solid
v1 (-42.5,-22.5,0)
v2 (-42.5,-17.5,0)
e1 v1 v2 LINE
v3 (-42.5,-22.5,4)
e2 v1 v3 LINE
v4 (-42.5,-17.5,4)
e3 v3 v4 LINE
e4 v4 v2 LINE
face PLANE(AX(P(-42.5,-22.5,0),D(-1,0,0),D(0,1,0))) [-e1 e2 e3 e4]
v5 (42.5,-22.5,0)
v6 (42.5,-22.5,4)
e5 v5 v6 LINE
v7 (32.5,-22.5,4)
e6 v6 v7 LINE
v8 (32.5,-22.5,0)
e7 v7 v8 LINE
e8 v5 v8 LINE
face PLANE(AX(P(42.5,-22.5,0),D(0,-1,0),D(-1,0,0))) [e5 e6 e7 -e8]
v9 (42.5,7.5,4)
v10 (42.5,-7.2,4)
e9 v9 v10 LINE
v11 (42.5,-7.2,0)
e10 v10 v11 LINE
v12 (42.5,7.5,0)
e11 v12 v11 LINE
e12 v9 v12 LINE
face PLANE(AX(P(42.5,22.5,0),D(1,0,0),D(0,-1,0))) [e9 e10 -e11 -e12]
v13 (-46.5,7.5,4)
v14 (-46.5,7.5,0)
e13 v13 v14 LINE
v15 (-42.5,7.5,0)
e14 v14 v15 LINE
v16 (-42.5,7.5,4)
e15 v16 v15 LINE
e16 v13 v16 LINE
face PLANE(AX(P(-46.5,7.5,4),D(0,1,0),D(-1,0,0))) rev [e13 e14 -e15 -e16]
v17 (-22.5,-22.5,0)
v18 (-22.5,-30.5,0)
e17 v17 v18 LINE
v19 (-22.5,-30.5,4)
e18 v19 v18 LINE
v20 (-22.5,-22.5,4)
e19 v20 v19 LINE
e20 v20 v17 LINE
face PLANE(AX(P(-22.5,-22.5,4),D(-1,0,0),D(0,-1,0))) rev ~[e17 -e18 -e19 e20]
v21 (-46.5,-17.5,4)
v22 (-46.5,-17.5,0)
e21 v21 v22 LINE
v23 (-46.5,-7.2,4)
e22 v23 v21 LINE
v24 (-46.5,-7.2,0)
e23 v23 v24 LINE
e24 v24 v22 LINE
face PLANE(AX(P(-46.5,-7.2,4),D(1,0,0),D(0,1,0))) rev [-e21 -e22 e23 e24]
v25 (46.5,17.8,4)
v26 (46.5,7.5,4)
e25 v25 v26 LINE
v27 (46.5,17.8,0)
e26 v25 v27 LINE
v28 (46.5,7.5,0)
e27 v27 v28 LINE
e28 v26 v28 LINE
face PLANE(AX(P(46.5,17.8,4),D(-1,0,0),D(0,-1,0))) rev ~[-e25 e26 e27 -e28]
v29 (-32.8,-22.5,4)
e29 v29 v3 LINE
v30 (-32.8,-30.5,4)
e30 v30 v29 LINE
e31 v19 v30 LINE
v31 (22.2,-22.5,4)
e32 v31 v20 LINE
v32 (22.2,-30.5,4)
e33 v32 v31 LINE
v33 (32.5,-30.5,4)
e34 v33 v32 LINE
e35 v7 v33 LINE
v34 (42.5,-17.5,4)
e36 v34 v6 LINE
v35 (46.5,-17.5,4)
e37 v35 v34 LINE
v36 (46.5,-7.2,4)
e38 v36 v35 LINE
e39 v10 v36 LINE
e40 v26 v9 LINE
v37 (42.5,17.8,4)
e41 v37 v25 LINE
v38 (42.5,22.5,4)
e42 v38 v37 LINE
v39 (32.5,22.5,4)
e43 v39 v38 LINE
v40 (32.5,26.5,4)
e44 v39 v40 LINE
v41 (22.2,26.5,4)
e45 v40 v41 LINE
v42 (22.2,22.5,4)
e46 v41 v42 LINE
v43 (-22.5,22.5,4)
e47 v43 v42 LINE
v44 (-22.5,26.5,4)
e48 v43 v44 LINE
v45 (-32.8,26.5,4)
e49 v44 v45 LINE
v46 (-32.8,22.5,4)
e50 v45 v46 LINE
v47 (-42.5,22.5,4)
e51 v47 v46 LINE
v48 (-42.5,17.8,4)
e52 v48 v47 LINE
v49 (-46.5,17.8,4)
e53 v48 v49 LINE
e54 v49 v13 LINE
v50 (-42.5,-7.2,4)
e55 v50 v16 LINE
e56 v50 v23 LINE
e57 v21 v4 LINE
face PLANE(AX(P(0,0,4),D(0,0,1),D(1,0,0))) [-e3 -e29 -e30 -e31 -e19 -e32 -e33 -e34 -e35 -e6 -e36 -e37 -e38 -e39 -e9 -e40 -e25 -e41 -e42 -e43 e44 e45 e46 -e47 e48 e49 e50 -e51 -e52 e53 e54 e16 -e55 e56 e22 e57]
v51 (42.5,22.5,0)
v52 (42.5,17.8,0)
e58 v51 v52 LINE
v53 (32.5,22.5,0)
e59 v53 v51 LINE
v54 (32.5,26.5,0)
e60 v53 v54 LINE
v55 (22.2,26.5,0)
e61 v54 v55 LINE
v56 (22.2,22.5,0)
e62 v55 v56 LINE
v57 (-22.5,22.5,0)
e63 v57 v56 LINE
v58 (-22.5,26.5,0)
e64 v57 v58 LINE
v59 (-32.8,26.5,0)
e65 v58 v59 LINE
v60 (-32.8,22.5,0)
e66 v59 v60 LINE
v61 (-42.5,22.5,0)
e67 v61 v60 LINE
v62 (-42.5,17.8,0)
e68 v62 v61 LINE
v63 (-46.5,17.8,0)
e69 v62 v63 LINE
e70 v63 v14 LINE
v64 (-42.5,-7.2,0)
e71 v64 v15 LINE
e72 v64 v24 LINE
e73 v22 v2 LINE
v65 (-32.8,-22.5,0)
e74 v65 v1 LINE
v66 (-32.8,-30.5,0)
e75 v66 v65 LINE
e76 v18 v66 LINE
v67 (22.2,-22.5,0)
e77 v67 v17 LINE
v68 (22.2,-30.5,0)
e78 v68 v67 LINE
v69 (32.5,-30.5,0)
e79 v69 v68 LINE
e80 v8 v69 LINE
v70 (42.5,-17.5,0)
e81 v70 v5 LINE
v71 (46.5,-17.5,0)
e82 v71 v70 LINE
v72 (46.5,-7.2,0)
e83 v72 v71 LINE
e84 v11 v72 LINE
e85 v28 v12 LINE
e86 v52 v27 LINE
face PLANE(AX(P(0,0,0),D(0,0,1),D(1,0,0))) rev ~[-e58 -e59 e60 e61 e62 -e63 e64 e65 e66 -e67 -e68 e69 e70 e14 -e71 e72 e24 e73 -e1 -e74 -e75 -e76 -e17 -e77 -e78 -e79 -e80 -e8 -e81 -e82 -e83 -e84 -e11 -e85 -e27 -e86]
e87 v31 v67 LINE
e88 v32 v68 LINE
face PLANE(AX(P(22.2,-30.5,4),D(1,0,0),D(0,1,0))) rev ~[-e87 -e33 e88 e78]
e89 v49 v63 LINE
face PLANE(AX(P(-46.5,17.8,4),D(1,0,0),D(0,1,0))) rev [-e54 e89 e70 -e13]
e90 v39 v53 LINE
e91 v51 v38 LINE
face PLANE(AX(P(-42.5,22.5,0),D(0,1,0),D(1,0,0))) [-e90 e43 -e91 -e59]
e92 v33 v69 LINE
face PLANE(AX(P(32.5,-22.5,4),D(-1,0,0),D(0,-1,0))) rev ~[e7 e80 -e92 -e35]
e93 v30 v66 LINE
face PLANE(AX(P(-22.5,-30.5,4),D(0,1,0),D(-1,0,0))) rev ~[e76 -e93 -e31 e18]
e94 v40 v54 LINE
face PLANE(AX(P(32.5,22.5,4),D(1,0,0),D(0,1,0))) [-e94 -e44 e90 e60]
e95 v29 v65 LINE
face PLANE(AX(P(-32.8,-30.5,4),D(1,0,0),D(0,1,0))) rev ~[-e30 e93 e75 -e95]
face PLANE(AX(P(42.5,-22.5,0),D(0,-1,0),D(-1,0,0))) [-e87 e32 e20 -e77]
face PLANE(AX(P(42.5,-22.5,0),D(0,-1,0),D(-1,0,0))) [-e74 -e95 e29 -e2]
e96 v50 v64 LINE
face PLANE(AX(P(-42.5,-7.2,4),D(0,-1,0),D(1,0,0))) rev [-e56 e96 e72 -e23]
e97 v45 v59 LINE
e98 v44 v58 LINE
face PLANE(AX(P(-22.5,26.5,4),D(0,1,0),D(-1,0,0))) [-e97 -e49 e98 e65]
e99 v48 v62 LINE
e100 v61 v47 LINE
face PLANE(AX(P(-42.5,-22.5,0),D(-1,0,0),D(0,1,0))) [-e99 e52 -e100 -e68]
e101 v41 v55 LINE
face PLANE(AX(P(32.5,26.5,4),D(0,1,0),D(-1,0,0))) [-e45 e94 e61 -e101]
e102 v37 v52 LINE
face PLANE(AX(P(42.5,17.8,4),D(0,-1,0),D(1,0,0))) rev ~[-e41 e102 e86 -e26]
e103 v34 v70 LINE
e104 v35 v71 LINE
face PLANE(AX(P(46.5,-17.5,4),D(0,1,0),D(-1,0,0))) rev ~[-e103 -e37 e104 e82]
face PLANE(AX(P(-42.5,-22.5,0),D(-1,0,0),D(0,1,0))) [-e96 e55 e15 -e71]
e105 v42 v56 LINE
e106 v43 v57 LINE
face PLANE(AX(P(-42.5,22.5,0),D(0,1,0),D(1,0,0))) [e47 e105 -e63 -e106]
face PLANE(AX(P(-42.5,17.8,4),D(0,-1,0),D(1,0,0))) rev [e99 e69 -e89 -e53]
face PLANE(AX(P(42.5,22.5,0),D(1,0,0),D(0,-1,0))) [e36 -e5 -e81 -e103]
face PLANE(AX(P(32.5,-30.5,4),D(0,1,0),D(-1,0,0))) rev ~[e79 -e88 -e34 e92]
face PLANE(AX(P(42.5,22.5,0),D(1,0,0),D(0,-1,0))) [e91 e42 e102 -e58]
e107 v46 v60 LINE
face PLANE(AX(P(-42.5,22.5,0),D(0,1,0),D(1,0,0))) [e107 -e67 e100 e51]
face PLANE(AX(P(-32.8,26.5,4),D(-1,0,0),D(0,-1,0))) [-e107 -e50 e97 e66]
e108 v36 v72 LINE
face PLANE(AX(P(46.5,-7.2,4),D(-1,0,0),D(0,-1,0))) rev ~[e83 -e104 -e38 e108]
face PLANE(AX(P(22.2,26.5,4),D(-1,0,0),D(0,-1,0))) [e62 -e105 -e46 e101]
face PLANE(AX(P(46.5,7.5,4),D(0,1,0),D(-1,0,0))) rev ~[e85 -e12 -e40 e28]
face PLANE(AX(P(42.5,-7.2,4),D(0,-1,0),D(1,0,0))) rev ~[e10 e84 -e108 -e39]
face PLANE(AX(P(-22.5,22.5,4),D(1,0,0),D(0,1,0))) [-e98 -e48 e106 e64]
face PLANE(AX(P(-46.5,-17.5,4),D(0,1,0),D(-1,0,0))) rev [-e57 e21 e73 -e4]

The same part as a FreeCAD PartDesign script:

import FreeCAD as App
import Part
import Sketcher


def add_polygon(sketch, points):
    """Adds a closed chain of lines whose ends are joined by coincident constraints."""
    first, n = sketch.GeometryCount, len(points)
    for a, b in zip(points, points[1:] + points[:1]):
        sketch.addGeometry(Part.LineSegment(App.Vector(*a, 0), App.Vector(*b, 0)), False)
    for i in range(n):
        sketch.addConstraint(Sketcher.Constraint("Coincident", first + i, 2, first + (i + 1) % n, 1))

doc = App.newDocument("Part")
params = doc.addObject("Spreadsheet::Sheet", "Params")
for row, (alias, value) in enumerate([
    ("sketch1_width", "85 mm"),
    ("sketch1_height", "45 mm"),
    ("pad1_length", "4 mm"),
    ("sketch2_width", "4 mm"),
    ("sketch2_height", "10.3 mm"),
    ("pad2_length", "4 mm"),
    ("sketch3_height", "8 mm"),
    ("sketch3_width", "10.3 mm"),
    ("pad3_length", "4 mm"),
    ("sketch4_height", "4 mm"),
    ("sketch4_width", "10.3 mm"),
    ("pad4_length", "4 mm"),
], start=1):
    params.set(f"A{row}", alias)
    params.set(f"B{row}", "=" + value)
    params.setAlias(f"B{row}", alias)

body = doc.addObject("PartDesign::Body", "Body")

# Sketch on XY plane
sketch1 = body.newObject("Sketcher::SketchObject", "Sketch")
sketch1.AttachmentSupport = (doc.getObject("XY_Plane"), [""])
sketch1.MapMode = "FlatFace"
add_polygon(sketch1, [(-42.5, -22.5), (42.5, -22.5), (42.5, 22.5), (-42.5, 22.5)])  # lines 0-3
sketch1.addConstraint([
    Sketcher.Constraint("Horizontal", 0),
    Sketcher.Constraint("Vertical", 1),
    Sketcher.Constraint("Horizontal", 2),
    Sketcher.Constraint("Vertical", 3),
    Sketcher.Constraint("Symmetric", 0, 2, 2, 2, -1, 1),
    Sketcher.Constraint("DistanceX", 0, 1, 0, 2, 85.0),
    Sketcher.Constraint("DistanceY", 1, 1, 1, 2, 45.0),
])
sketch1.setExpression("Constraints[9]", "Params.sketch1_width")
sketch1.setExpression("Constraints[10]", "Params.sketch1_height")
pad1 = body.newObject("PartDesign::Pad", "Pad")
pad1.Profile = sketch1
pad1.setExpression("Length", "Params.pad1_length")

# Sketch on XY plane
sketch2 = body.newObject("Sketcher::SketchObject", "Sketch001")
sketch2.AttachmentSupport = (doc.getObject("XY_Plane"), [""])
sketch2.MapMode = "FlatFace"
sketch2.AttachmentOffset = App.Placement(App.Vector(0, 0, 4), App.Rotation())
add_polygon(sketch2, [(42.5, -7.2), (42.5, -17.5), (46.5, -17.5), (46.5, -7.2)])  # lines 0-3
add_polygon(sketch2, [(46.5, 17.8), (42.5, 17.8), (42.5, 7.5), (46.5, 7.5)])  # lines 4-7
sketch2.addConstraint([
    Sketcher.Constraint("Vertical", 0),
    Sketcher.Constraint("Horizontal", 1),
    Sketcher.Constraint("Vertical", 2),
    Sketcher.Constraint("Horizontal", 3),
    Sketcher.Constraint("Horizontal", 4),
    Sketcher.Constraint("Vertical", 5),
    Sketcher.Constraint("Horizontal", 6),
    Sketcher.Constraint("Vertical", 7),
    Sketcher.Constraint("Vertical", 3, 2, 4, 2),
    Sketcher.Constraint("Vertical", 2, 2, 6, 2),
    Sketcher.Constraint("Equal", 2, 5),
    Sketcher.Constraint("DistanceX", 1, 1, 1, 2, 4.0),
    Sketcher.Constraint("DistanceY", 0, 2, 0, 1, 10.3),
    Sketcher.Constraint("DistanceY", 3, 2, 4, 2, 25.0),
    Sketcher.Constraint("DistanceX", -1, 1, 0, 2, 42.5),
    Sketcher.Constraint("DistanceY", 0, 2, -1, 1, 17.5),
])
sketch2.setExpression("Constraints[19]", "Params.sketch2_width")
sketch2.setExpression("Constraints[20]", "Params.sketch2_height")
pad2 = body.newObject("PartDesign::Pad", "Pad001")
pad2.Profile = sketch2
pad2.setExpression("Length", "Params.pad2_length")
pad2.Reversed = True
doc.recompute()

mirrored = body.newObject("PartDesign::Mirrored", "Mirrored")
mirrored.Originals = [pad2]
mirrored.MirrorPlane = (doc.getObject("YZ_Plane"), [""])
body.Tip = mirrored

# Sketch on XY plane
sketch3 = body.newObject("Sketcher::SketchObject", "Sketch002")
sketch3.AttachmentSupport = (doc.getObject("XY_Plane"), [""])
sketch3.MapMode = "FlatFace"
sketch3.AttachmentOffset = App.Placement(App.Vector(0, 0, 4), App.Rotation())
add_polygon(sketch3, [(32.5, -22.5), (22.2, -22.5), (22.2, -30.5), (32.5, -30.5)])  # lines 0-3
add_polygon(sketch3, [(-22.5, -22.5), (-32.8, -22.5), (-32.8, -30.5), (-22.5, -30.5)])  # lines 4-7
sketch3.addConstraint([
    Sketcher.Constraint("Horizontal", 0),
    Sketcher.Constraint("Vertical", 1),
    Sketcher.Constraint("Horizontal", 2),
    Sketcher.Constraint("Vertical", 3),
    Sketcher.Constraint("Horizontal", 4),
    Sketcher.Constraint("Vertical", 5),
    Sketcher.Constraint("Horizontal", 6),
    Sketcher.Constraint("Vertical", 7),
    Sketcher.Constraint("Horizontal", 3, 2, 4, 2),
    Sketcher.Constraint("Horizontal", 2, 2, 5, 2),
    Sketcher.Constraint("Equal", 2, 4),
    Sketcher.Constraint("DistanceY", 1, 2, 1, 1, 8.0),
    Sketcher.Constraint("DistanceX", 0, 2, 0, 1, 10.3),
    Sketcher.Constraint("DistanceX", 4, 2, 0, 2, 55.0),
    Sketcher.Constraint("DistanceX", -1, 1, 0, 2, 22.2),
    Sketcher.Constraint("DistanceY", 0, 2, -1, 1, 22.5),
])
sketch3.setExpression("Constraints[19]", "Params.sketch3_height")
sketch3.setExpression("Constraints[20]", "Params.sketch3_width")
pad3 = body.newObject("PartDesign::Pad", "Pad002")
pad3.Profile = sketch3
pad3.setExpression("Length", "Params.pad3_length")
pad3.Reversed = True

# Sketch on XY plane
sketch4 = body.newObject("Sketcher::SketchObject", "Sketch003")
sketch4.AttachmentSupport = (doc.getObject("XY_Plane"), [""])
sketch4.MapMode = "FlatFace"
sketch4.AttachmentOffset = App.Placement(App.Vector(0, 0, 4), App.Rotation())
add_polygon(sketch4, [(-32.8, 22.5), (-22.5, 22.5), (-22.5, 26.5), (-32.8, 26.5)])  # lines 0-3
add_polygon(sketch4, [(22.2, 22.5), (32.5, 22.5), (32.5, 26.5), (22.2, 26.5)])  # lines 4-7
sketch4.addConstraint([
    Sketcher.Constraint("Horizontal", 0),
    Sketcher.Constraint("Vertical", 1),
    Sketcher.Constraint("Horizontal", 2),
    Sketcher.Constraint("Vertical", 3),
    Sketcher.Constraint("Horizontal", 4),
    Sketcher.Constraint("Vertical", 5),
    Sketcher.Constraint("Horizontal", 6),
    Sketcher.Constraint("Vertical", 7),
    Sketcher.Constraint("Horizontal", 3, 2, 4, 2),
    Sketcher.Constraint("Horizontal", 2, 2, 5, 2),
    Sketcher.Constraint("Equal", 2, 4),
    Sketcher.Constraint("DistanceY", 1, 1, 1, 2, 4.0),
    Sketcher.Constraint("DistanceX", 0, 1, 0, 2, 10.3),
    Sketcher.Constraint("DistanceX", 0, 2, 4, 2, 55.0),
    Sketcher.Constraint("DistanceX", 0, 2, -1, 1, 22.5),
    Sketcher.Constraint("DistanceY", -1, 1, 0, 2, 22.5),
])
sketch4.setExpression("Constraints[19]", "Params.sketch4_height")
sketch4.setExpression("Constraints[20]", "Params.sketch4_width")
pad4 = body.newObject("PartDesign::Pad", "Pad003")
pad4.Profile = sketch4
pad4.setExpression("Length", "Params.pad4_length")
pad4.Reversed = True

doc.recompute()
